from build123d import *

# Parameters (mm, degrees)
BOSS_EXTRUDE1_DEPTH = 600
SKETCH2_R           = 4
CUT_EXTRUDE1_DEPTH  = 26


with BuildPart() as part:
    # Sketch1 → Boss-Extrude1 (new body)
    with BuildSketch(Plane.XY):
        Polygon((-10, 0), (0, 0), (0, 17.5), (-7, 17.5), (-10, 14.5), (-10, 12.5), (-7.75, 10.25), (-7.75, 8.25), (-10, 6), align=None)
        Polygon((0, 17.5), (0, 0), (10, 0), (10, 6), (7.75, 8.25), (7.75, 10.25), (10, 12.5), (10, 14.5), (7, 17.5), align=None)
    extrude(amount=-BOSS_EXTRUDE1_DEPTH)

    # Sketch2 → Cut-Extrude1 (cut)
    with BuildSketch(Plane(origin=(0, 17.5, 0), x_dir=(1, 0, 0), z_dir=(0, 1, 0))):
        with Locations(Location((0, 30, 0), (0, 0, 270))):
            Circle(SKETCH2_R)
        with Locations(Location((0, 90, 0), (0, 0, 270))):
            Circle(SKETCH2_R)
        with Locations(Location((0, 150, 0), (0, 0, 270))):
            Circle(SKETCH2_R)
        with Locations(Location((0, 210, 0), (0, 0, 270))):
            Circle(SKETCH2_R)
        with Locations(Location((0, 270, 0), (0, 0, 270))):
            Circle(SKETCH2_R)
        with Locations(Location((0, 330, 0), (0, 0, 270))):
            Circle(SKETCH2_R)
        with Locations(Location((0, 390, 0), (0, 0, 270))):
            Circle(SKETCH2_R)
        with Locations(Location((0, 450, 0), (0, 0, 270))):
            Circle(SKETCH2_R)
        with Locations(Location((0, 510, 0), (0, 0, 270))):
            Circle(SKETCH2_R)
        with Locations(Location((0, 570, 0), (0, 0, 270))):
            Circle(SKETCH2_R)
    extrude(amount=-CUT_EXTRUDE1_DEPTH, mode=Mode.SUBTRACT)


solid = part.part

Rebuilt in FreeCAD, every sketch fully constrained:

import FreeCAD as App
import Part
import Sketcher


def add_polygon(sketch, points):
    """Adds a closed chain of lines whose ends are joined by coincident constraints."""
    first, n = sketch.GeometryCount, len(points)
    for a, b in zip(points, points[1:] + points[:1]):
        sketch.addGeometry(Part.LineSegment(App.Vector(*a, 0), App.Vector(*b, 0)), False)
    for i in range(n):
        sketch.addConstraint(Sketcher.Constraint("Coincident", first + i, 2, first + (i + 1) % n, 1))

doc = App.newDocument("Part")
body = doc.addObject("PartDesign::Body", "Body")

# Sketch on XY plane
sketch1 = doc.addObject("Sketcher::SketchObject", "Sketch")
body.addObject(sketch1)
sketch1.AttachmentSupport = (doc.XY_Plane, [""])
sketch1.MapMode = "FlatFace"
add_polygon(sketch1, [(-10, 0), (10, 0), (10, 6), (7.8, 8.2), (7.8, 10.2), (10, 12.5), (10, 14.5), (7, 17.5), (-7, 17.5), (-10, 14.5), (-10, 12.5), (-7.8, 10.2), (-7.8, 8.2), (-10, 6)])  # lines 0-13
sketch1.addConstraint(Sketcher.Constraint("Horizontal", 0))
sketch1.addConstraint(Sketcher.Constraint("Vertical", 1))
sketch1.addConstraint(Sketcher.Constraint("Vertical", 3))
sketch1.addConstraint(Sketcher.Constraint("Vertical", 5))
sketch1.addConstraint(Sketcher.Constraint("Horizontal", 7))
sketch1.addConstraint(Sketcher.Constraint("Vertical", 9))
sketch1.addConstraint(Sketcher.Constraint("Vertical", 11))
sketch1.addConstraint(Sketcher.Constraint("Vertical", 13))
sketch1.addConstraint(Sketcher.Constraint("Symmetric", 0, 2, 13, 2, -1, 1))
sketch1.addConstraint(Sketcher.Constraint("Symmetric", 5, 2, 8, 2, -2))
sketch1.addConstraint(Sketcher.Constraint("Symmetric", 3, 2, 10, 2, -2))
sketch1.addConstraint(Sketcher.Constraint("Perpendicular", 2, 4))
sketch1.addConstraint(Sketcher.Constraint("Perpendicular", 4, 6))
sketch1.addConstraint(Sketcher.Constraint("Perpendicular", 6, 8))
sketch1.addConstraint(Sketcher.Constraint("Perpendicular", 8, 10))
sketch1.addConstraint(Sketcher.Constraint("Perpendicular", 10, 12))
sketch1.addConstraint(Sketcher.Constraint("Horizontal", 4, 2, 9, 2))
sketch1.addConstraint(Sketcher.Constraint("Horizontal", 2, 2, 11, 2))
sketch1.addConstraint(Sketcher.Constraint("Vertical", 1, 2, 4, 2))
sketch1.addConstraint(Sketcher.Constraint("Equal", 3, 5))
sketch1.addConstraint(Sketcher.Constraint("DistanceX", 0, 1, 0, 2, 20.0))
sketch1.addConstraint(Sketcher.Constraint("DistanceX", 7, 2, 7, 1, 14.0))
sketch1.addConstraint(Sketcher.Constraint("DistanceY", 1, 1, 1, 2, 6.0))
sketch1.addConstraint(Sketcher.Constraint("DistanceY", 3, 1, 3, 2, 2.0))
sketch1.addConstraint(Sketcher.Constraint("DistanceY", -1, 1, 4, 2, 12.5))
pad1 = doc.addObject("PartDesign::Pad", "Pad")
body.addObject(pad1)
pad1.Profile = sketch1
pad1.Length = 600
pad1.Reversed = True

# Sketch on XZ plane
sketch2 = doc.addObject("Sketcher::SketchObject", "Sketch001")
body.addObject(sketch2)
sketch2.AttachmentSupport = (doc.XZ_Plane, [""])
sketch2.MapMode = "FlatFace"
sketch2.AttachmentOffset = App.Placement(App.Vector(0, 0, -17.5), App.Rotation())
sketch2.addGeometry(Part.Circle(App.Vector(0, -30, 0), App.Vector(0, 0, 1), 4), False)
sketch2.addGeometry(Part.Circle(App.Vector(0, -90, 0), App.Vector(0, 0, 1), 4), False)
sketch2.addGeometry(Part.Circle(App.Vector(0, -150, 0), App.Vector(0, 0, 1), 4), False)
sketch2.addGeometry(Part.Circle(App.Vector(0, -210, 0), App.Vector(0, 0, 1), 4), False)
sketch2.addGeometry(Part.Circle(App.Vector(0, -270, 0), App.Vector(0, 0, 1), 4), False)
sketch2.addGeometry(Part.Circle(App.Vector(0, -330, 0), App.Vector(0, 0, 1), 4), False)
sketch2.addGeometry(Part.Circle(App.Vector(0, -390, 0), App.Vector(0, 0, 1), 4), False)
sketch2.addGeometry(Part.Circle(App.Vector(0, -450, 0), App.Vector(0, 0, 1), 4), False)
sketch2.addGeometry(Part.Circle(App.Vector(0, -510, 0), App.Vector(0, 0, 1), 4), False)
sketch2.addGeometry(Part.Circle(App.Vector(0, -570, 0), App.Vector(0, 0, 1), 4), False)
sketch2.addConstraint(Sketcher.Constraint("Equal", 0, 1))
sketch2.addConstraint(Sketcher.Constraint("Equal", 1, 2))
sketch2.addConstraint(Sketcher.Constraint("Equal", 2, 3))
sketch2.addConstraint(Sketcher.Constraint("Equal", 3, 4))
sketch2.addConstraint(Sketcher.Constraint("Equal", 4, 5))
sketch2.addConstraint(Sketcher.Constraint("Equal", 5, 6))
sketch2.addConstraint(Sketcher.Constraint("Equal", 6, 7))
sketch2.addConstraint(Sketcher.Constraint("Equal", 7, 8))
sketch2.addConstraint(Sketcher.Constraint("Equal", 8, 9))
sketch2.addConstraint(Sketcher.Constraint("PointOnObject", 0, 3, -2))
sketch2.addConstraint(Sketcher.Constraint("PointOnObject", 1, 3, -2))
sketch2.addConstraint(Sketcher.Constraint("PointOnObject", 2, 3, -2))
sketch2.addConstraint(Sketcher.Constraint("PointOnObject", 3, 3, -2))
sketch2.addConstraint(Sketcher.Constraint("PointOnObject", 4, 3, -2))
sketch2.addConstraint(Sketcher.Constraint("PointOnObject", 5, 3, -2))
sketch2.addConstraint(Sketcher.Constraint("PointOnObject", 6, 3, -2))
sketch2.addConstraint(Sketcher.Constraint("PointOnObject", 7, 3, -2))
sketch2.addConstraint(Sketcher.Constraint("PointOnObject", 8, 3, -2))
sketch2.addConstraint(Sketcher.Constraint("PointOnObject", 9, 3, -2))
sketch2.addConstraint(Sketcher.Constraint("Diameter", 0, 8.0))
sketch2.addConstraint(Sketcher.Constraint("DistanceY", 0, 3, -1, 1, 30.0))
sketch2.addConstraint(Sketcher.Constraint("DistanceY", 1, 3, -1, 1, 90.0))
sketch2.addConstraint(Sketcher.Constraint("DistanceY", 2, 3, -1, 1, 150.0))
sketch2.addConstraint(Sketcher.Constraint("DistanceY", 3, 3, -1, 1, 210.0))
sketch2.addConstraint(Sketcher.Constraint("DistanceY", 4, 3, -1, 1, 270.0))
sketch2.addConstraint(Sketcher.Constraint("DistanceY", 5, 3, -1, 1, 330.0))
sketch2.addConstraint(Sketcher.Constraint("DistanceY", 6, 3, -1, 1, 390.0))
sketch2.addConstraint(Sketcher.Constraint("DistanceY", 7, 3, -1, 1, 450.0))
sketch2.addConstraint(Sketcher.Constraint("DistanceY", 8, 3, -1, 1, 510.0))
sketch2.addConstraint(Sketcher.Constraint("DistanceY", 9, 3, -1, 1, 570.0))
pocket1 = doc.addObject("PartDesign::Pocket", "Pocket")
body.addObject(pocket1)
pocket1.Profile = sketch2
pocket1.Length = 26
pocket1.Reversed = True

doc.recompute()
